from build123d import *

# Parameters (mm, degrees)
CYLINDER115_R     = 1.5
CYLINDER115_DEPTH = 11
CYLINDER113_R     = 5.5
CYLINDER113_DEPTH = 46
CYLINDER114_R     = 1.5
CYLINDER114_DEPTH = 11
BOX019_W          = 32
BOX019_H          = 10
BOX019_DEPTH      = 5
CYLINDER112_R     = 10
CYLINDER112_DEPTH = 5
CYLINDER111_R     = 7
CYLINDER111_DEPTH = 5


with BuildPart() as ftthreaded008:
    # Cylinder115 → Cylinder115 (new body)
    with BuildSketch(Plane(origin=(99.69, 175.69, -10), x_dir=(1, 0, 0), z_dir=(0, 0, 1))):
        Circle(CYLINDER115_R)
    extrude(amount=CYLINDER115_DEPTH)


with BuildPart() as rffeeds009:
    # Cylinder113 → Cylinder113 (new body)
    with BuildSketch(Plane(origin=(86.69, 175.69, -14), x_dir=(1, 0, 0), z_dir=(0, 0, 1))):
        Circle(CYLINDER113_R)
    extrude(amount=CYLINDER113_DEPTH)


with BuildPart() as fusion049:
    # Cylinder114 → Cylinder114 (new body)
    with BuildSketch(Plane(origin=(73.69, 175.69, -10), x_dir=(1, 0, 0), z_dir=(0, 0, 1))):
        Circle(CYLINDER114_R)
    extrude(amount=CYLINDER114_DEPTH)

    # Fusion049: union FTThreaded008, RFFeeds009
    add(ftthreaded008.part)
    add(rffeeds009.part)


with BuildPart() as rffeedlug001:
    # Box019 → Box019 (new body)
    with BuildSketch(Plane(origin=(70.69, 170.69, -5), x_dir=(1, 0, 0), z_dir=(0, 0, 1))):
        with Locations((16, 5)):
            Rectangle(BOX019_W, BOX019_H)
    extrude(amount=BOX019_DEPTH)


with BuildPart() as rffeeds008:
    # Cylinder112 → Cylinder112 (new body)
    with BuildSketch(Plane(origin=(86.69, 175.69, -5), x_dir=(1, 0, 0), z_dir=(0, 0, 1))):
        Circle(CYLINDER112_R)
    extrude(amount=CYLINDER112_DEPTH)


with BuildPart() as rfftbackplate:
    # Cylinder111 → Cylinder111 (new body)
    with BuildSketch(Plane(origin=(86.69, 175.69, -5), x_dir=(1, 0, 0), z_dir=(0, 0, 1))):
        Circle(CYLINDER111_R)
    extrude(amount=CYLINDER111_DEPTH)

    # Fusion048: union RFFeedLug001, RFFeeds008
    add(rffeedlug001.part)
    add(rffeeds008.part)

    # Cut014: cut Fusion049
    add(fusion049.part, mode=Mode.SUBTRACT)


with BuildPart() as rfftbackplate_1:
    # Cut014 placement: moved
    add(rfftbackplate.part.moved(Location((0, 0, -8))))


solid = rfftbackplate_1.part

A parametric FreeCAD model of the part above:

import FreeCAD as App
import Part
import Sketcher


def add_polygon(sketch, points):
    """Adds a closed chain of lines whose ends are joined by coincident constraints."""
    first, n = sketch.GeometryCount, len(points)
    for a, b in zip(points, points[1:] + points[:1]):
        sketch.addGeometry(Part.LineSegment(App.Vector(*a, 0), App.Vector(*b, 0)), False)
    for i in range(n):
        sketch.addConstraint(Sketcher.Constraint("Coincident", first + i, 2, first + (i + 1) % n, 1))

doc = App.newDocument("Part")
body = doc.addObject("PartDesign::Body", "Body")

# Sketch on XY plane
sketch1 = doc.addObject("Sketcher::SketchObject", "Sketch")
body.addObject(sketch1)
sketch1.AttachmentSupport = (doc.XY_Plane, [""])
sketch1.MapMode = "FlatFace"
sketch1.AttachmentOffset = App.Placement(App.Vector(0, 0, -10), App.Rotation())
sketch1.addGeometry(Part.Circle(App.Vector(99.7, 175.7, 0), App.Vector(0, 0, 1), 1.5), False)
sketch1.addConstraint([
    Sketcher.Constraint("Diameter", 0, 3.0),
    Sketcher.Constraint("DistanceX", -1, 1, 0, 3, 99.69),
    Sketcher.Constraint("DistanceY", -1, 1, 0, 3, 175.69),
])
pad1 = doc.addObject("PartDesign::Pad", "Pad")
body.addObject(pad1)
pad1.Profile = sketch1
pad1.Length = 11
body2 = doc.addObject("PartDesign::Body", "Body001")

# Sketch on XY plane
sketch2 = doc.addObject("Sketcher::SketchObject", "Sketch001")
body2.addObject(sketch2)
sketch2.AttachmentSupport = (doc.getObject("XY_Plane001"), [""])
sketch2.MapMode = "FlatFace"
sketch2.AttachmentOffset = App.Placement(App.Vector(0, 0, -14), App.Rotation())
sketch2.addGeometry(Part.Circle(App.Vector(87, 176, 0), App.Vector(0, 0, 1), 6), False)
sketch2.addConstraint([
    Sketcher.Constraint("Diameter", 0, 11.0),
    Sketcher.Constraint("DistanceX", -1, 1, 0, 3, 86.69),
    Sketcher.Constraint("DistanceY", -1, 1, 0, 3, 175.69),
])
pad2 = doc.addObject("PartDesign::Pad", "Pad001")
body2.addObject(pad2)
pad2.Profile = sketch2
pad2.Length = 46
body3 = doc.addObject("PartDesign::Body", "Body002")
body3.AllowCompound = True

# Sketch on XY plane
sketch3 = doc.addObject("Sketcher::SketchObject", "Sketch002")
body3.addObject(sketch3)
sketch3.AttachmentSupport = (doc.getObject("XY_Plane002"), [""])
sketch3.MapMode = "FlatFace"
sketch3.AttachmentOffset = App.Placement(App.Vector(0, 0, -10), App.Rotation())
sketch3.addGeometry(Part.Circle(App.Vector(73.7, 175.7, 0), App.Vector(0, 0, 1), 1.5), False)
sketch3.addConstraint([
    Sketcher.Constraint("Diameter", 0, 3.0),
    Sketcher.Constraint("DistanceX", -1, 1, 0, 3, 73.69),
    Sketcher.Constraint("DistanceY", -1, 1, 0, 3, 175.69),
])
pad3 = doc.addObject("PartDesign::Pad", "Pad002")
body3.addObject(pad3)
pad3.Profile = sketch3
pad3.Length = 11
doc.recompute()

boolean = doc.addObject("PartDesign::Boolean", "Boolean")
body3.addObject(boolean)
boolean.Type = "Fuse"
boolean.addObjects([body])
doc.recompute()

boolean2 = doc.addObject("PartDesign::Boolean", "Boolean001")
body3.addObject(boolean2)
boolean2.Type = "Fuse"
boolean2.addObjects([body2])
body4 = doc.addObject("PartDesign::Body", "Body003")

# Sketch on XY plane
sketch4 = doc.addObject("Sketcher::SketchObject", "Sketch003")
body4.addObject(sketch4)
sketch4.AttachmentSupport = (doc.getObject("XY_Plane003"), [""])
sketch4.MapMode = "FlatFace"
sketch4.AttachmentOffset = App.Placement(App.Vector(0, 0, -5), App.Rotation())
add_polygon(sketch4, [(71, 181), (71, 171), (103, 171), (103, 181)])  # lines 0-3
sketch4.addConstraint([
    Sketcher.Constraint("Vertical", 0),
    Sketcher.Constraint("Horizontal", 1),
    Sketcher.Constraint("Vertical", 2),
    Sketcher.Constraint("Horizontal", 3),
    Sketcher.Constraint("DistanceX", 1, 1, 1, 2, 32.0),
    Sketcher.Constraint("DistanceY", 0, 2, 0, 1, 10.0),
    Sketcher.Constraint("DistanceX", -1, 1, 0, 2, 70.69),
    Sketcher.Constraint("DistanceY", -1, 1, 0, 2, 170.69),
])
pad4 = doc.addObject("PartDesign::Pad", "Pad003")
body4.addObject(pad4)
pad4.Profile = sketch4
pad4.Length = 5
body5 = doc.addObject("PartDesign::Body", "Body004")

# Sketch on XY plane
sketch5 = doc.addObject("Sketcher::SketchObject", "Sketch004")
body5.addObject(sketch5)
sketch5.AttachmentSupport = (doc.getObject("XY_Plane004"), [""])
sketch5.MapMode = "FlatFace"
sketch5.AttachmentOffset = App.Placement(App.Vector(0, 0, -5), App.Rotation())
sketch5.addGeometry(Part.Circle(App.Vector(87, 176, 0), App.Vector(0, 0, 1), 10), False)
sketch5.addConstraint([
    Sketcher.Constraint("Diameter", 0, 20.0),
    Sketcher.Constraint("DistanceX", -1, 1, 0, 3, 86.69),
    Sketcher.Constraint("DistanceY", -1, 1, 0, 3, 175.69),
])
pad5 = doc.addObject("PartDesign::Pad", "Pad004")
body5.addObject(pad5)
pad5.Profile = sketch5
pad5.Length = 5
body6 = doc.addObject("PartDesign::Body", "Body005")

# Sketch on XY plane
sketch6 = doc.addObject("Sketcher::SketchObject", "Sketch005")
body6.addObject(sketch6)
sketch6.AttachmentSupport = (doc.getObject("XY_Plane005"), [""])
sketch6.MapMode = "FlatFace"
sketch6.AttachmentOffset = App.Placement(App.Vector(0, 0, -5), App.Rotation())
sketch6.addGeometry(Part.Circle(App.Vector(87, 176, 0), App.Vector(0, 0, 1), 7), False)
sketch6.addConstraint([
    Sketcher.Constraint("Diameter", 0, 14.0),
    Sketcher.Constraint("DistanceX", -1, 1, 0, 3, 86.69),
    Sketcher.Constraint("DistanceY", -1, 1, 0, 3, 175.69),
])
pad6 = doc.addObject("PartDesign::Pad", "Pad005")
body6.addObject(pad6)
pad6.Profile = sketch6
pad6.Length = 5
doc.recompute()

boolean3 = doc.addObject("PartDesign::Boolean", "Boolean002")
body6.addObject(boolean3)
boolean3.Type = "Fuse"
boolean3.addObjects([body4])
doc.recompute()

boolean4 = doc.addObject("PartDesign::Boolean", "Boolean003")
body6.addObject(boolean4)
boolean4.Type = "Fuse"
boolean4.addObjects([body5])
doc.recompute()

boolean5 = doc.addObject("PartDesign::Boolean", "Boolean004")
body6.addObject(boolean5)
boolean5.Type = "Cut"
boolean5.addObjects([body3])
body7 = doc.addObject("PartDesign::Body", "Body006")
doc.recompute()

body6.Placement = App.Placement(App.Vector(0, 0, -8), App.Rotation(App.Vector(0, 0, 1), 0))
boolean6 = doc.addObject("PartDesign::Boolean", "Boolean005")
body7.addObject(boolean6)
boolean6.Type = "Fuse"
boolean6.addObjects([body6])

doc.recompute()
